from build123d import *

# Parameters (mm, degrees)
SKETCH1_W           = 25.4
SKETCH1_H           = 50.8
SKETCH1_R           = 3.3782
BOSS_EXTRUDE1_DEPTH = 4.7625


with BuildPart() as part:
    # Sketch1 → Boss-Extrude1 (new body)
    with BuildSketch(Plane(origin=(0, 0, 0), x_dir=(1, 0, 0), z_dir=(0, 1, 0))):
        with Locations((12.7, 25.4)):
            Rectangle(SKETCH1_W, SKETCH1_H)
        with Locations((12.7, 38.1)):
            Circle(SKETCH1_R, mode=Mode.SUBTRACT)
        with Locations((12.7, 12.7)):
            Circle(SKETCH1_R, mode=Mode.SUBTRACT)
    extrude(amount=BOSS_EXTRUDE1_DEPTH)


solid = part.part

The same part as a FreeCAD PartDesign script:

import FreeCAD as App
import Part
import Sketcher
from FreeCAD import Vector
Q = App.Units.Quantity

doc = App.newDocument("Part")
params = doc.addObject("Spreadsheet::Sheet", "Params")
for row, (alias, value) in enumerate([
    ("sketch1_width", "1 in"),
    ("sketch1_height", "2 in"),
    ("sketch1_diameter", "0.266 in"),
    ("pad1_length", "0.1875 in"),
], start=1):
    params.set(f"A{row}", alias)
    params.set(f"B{row}", "=" + value)
    params.setAlias(f"B{row}", alias)

body = doc.addObject("PartDesign::Body", "Body")

# Sketch on XZ plane
sketch1 = doc.addObject("Sketcher::SketchObject", "Sketch")
body.addObject(sketch1)
sketch1.AttachmentSupport = (doc.XZ_Plane, [""])
sketch1.MapMode = "FlatFace"
sketch1.addGeometry(Part.LineSegment(Vector(0, -50.8, 0), Vector(0, 0, 0)), False)
sketch1.addGeometry(Part.LineSegment(Vector(0, 0, 0), Vector(25.4, 0, 0)), False)
sketch1.addGeometry(Part.LineSegment(Vector(25.4, 0, 0), Vector(25.4, -50.8, 0)), False)
sketch1.addGeometry(Part.LineSegment(Vector(25.4, -50.8, 0), Vector(0, -50.8, 0)), False)
sketch1.addGeometry(Part.Circle(Vector(12.7, -12.7, 0), Vector(0, 0, 1), 3.4), False)
sketch1.addGeometry(Part.Circle(Vector(12.7, -38.1, 0), Vector(0, 0, 1), 3.4), False)
sketch1.addConstraint(Sketcher.Constraint("Coincident", 0, 2, 1, 1))
sketch1.addConstraint(Sketcher.Constraint("Coincident", 1, 2, 2, 1))
sketch1.addConstraint(Sketcher.Constraint("Coincident", 2, 2, 3, 1))
sketch1.addConstraint(Sketcher.Constraint("Coincident", 3, 2, 0, 1))
sketch1.addConstraint(Sketcher.Constraint("Vertical", 0))
sketch1.addConstraint(Sketcher.Constraint("Horizontal", 1))
sketch1.addConstraint(Sketcher.Constraint("Vertical", 2))
sketch1.addConstraint(Sketcher.Constraint("Horizontal", 3))
sketch1.addConstraint(Sketcher.Constraint("Coincident", 0, 2, -1, 1))
sketch1.addConstraint(Sketcher.Constraint("Equal", 4, 5))
sketch1.addConstraint(Sketcher.Constraint("Vertical", 4, 3, 5, 3))
sketch1.addConstraint(Sketcher.Constraint("DistanceX", 1, 1, 1, 2, Q("1 in")))
sketch1.addConstraint(Sketcher.Constraint("DistanceY", 0, 1, 0, 2, Q("2 in")))
sketch1.addConstraint(Sketcher.Constraint("Diameter", 4, Q("0.266 in")))
sketch1.addConstraint(Sketcher.Constraint("DistanceY", 5, 3, 4, 3, Q("1 in")))
sketch1.addConstraint(Sketcher.Constraint("DistanceX", -1, 1, 4, 3, Q("0.5 in")))
sketch1.addConstraint(Sketcher.Constraint("DistanceY", 4, 3, -1, 1, Q("0.5 in")))
sketch1.setExpression("Constraints[11]", "Params.sketch1_width")
sketch1.setExpression("Constraints[12]", "Params.sketch1_height")
sketch1.setExpression("Constraints[13]", "Params.sketch1_diameter")
pad1 = doc.addObject("PartDesign::Pad", "Pad")
body.addObject(pad1)
pad1.Profile = sketch1
pad1.setExpression("Length", "Params.pad1_length")
pad1.Reversed = True

doc.recompute()
